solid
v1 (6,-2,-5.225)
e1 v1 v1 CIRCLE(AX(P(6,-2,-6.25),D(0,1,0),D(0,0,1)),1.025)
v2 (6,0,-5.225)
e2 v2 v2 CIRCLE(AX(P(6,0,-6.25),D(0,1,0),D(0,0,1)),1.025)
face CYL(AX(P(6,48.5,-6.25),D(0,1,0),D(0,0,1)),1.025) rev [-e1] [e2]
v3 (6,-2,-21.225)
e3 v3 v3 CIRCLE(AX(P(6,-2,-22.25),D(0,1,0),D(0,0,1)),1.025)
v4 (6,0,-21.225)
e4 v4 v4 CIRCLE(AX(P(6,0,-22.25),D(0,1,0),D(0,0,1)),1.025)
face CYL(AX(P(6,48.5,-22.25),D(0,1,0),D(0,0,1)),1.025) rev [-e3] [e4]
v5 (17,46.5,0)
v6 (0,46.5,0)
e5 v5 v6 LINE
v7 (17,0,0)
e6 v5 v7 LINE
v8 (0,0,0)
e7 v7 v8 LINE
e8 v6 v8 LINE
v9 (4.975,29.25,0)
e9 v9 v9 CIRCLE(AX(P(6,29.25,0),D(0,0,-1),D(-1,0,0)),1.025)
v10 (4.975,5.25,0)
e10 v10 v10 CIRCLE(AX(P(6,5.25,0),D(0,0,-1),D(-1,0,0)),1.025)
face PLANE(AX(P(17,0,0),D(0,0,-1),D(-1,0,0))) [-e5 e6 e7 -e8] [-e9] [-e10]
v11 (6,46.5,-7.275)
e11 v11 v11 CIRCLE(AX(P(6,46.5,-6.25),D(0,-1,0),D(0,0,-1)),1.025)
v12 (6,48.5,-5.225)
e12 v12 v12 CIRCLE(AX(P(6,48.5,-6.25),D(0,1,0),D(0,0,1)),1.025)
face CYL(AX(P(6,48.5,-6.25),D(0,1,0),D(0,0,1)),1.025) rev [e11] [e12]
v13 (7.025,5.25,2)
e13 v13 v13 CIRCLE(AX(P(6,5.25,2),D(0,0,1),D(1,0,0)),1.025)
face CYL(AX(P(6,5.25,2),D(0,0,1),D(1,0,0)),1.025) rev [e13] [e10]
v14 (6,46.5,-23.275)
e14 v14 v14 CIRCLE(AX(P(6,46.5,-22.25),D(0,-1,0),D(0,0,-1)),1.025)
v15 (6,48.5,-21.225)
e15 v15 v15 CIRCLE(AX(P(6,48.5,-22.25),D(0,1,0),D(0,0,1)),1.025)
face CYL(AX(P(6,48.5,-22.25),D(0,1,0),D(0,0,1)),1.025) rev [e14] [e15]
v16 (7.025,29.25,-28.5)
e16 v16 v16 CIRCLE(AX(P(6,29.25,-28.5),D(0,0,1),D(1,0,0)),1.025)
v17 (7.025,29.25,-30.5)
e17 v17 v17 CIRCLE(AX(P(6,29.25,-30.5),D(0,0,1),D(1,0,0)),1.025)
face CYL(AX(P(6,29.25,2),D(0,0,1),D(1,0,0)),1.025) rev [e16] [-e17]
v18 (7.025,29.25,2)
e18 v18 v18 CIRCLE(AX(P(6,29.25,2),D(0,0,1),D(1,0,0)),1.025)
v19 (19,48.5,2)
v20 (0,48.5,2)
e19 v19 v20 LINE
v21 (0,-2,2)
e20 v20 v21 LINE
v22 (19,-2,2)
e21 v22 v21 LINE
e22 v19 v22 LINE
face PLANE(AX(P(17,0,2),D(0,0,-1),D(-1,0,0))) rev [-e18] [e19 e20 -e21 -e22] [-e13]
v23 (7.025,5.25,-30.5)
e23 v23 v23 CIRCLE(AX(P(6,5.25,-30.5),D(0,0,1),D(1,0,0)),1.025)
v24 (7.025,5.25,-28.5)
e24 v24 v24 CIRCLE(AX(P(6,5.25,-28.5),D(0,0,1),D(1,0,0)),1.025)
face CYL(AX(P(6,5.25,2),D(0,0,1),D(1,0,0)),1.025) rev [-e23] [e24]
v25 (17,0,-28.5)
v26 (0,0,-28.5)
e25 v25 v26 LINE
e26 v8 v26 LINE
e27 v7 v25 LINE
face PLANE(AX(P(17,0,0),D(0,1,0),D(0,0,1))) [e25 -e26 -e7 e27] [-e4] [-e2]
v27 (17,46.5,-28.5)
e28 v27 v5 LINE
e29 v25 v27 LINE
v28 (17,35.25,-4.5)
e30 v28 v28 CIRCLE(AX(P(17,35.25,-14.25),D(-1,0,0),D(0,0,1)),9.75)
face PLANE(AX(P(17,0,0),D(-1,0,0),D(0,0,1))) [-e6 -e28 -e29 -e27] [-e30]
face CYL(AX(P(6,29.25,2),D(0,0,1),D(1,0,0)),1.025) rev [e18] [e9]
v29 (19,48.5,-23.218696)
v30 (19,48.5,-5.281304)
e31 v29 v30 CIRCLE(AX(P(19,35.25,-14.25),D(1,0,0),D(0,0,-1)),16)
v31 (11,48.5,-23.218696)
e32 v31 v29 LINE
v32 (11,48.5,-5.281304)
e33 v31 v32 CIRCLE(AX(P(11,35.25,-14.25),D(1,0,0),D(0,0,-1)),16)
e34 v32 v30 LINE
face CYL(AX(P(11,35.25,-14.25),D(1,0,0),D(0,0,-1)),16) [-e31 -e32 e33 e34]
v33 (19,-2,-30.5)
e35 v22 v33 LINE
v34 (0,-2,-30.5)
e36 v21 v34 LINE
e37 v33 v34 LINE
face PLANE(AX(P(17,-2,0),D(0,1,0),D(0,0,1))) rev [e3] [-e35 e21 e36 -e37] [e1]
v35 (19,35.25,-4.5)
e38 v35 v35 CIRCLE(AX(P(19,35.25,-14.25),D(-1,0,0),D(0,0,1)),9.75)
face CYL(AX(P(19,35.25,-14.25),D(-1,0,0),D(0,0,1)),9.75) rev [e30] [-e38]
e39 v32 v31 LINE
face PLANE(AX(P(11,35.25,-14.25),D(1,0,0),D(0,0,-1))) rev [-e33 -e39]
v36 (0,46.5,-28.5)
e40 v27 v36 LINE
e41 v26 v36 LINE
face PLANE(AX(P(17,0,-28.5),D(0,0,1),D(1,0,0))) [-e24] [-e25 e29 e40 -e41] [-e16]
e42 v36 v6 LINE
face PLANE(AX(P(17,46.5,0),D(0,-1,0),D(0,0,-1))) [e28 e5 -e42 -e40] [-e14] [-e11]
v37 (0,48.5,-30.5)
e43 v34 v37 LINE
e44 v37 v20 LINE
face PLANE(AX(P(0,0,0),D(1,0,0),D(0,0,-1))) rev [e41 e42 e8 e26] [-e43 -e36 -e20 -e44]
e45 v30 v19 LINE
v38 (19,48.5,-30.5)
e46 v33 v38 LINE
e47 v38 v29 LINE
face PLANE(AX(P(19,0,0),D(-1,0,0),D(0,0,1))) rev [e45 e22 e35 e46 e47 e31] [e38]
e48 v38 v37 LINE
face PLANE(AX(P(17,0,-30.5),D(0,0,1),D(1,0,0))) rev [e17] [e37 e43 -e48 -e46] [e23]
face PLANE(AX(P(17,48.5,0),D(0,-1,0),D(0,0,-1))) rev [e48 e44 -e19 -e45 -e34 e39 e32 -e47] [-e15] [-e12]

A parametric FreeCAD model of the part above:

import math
import FreeCAD as App
import Part
import Sketcher
from FreeCAD import Vector
Q = App.Units.Quantity


def add_polygon(sketch, points):
    """Adds a closed chain of lines whose ends are joined by coincident constraints."""
    first, n = sketch.GeometryCount, len(points)
    for a, b in zip(points, points[1:] + points[:1]):
        sketch.addGeometry(Part.LineSegment(App.Vector(*a, 0), App.Vector(*b, 0)), False)
    for i in range(n):
        sketch.addConstraint(Sketcher.Constraint("Coincident", first + i, 2, first + (i + 1) % n, 1))

doc = App.newDocument("Part")
body = doc.addObject("PartDesign::Body", "Body")

# Sketch on YZ plane
sketch1 = doc.addObject("Sketcher::SketchObject", "Sketch")
body.addObject(sketch1)
sketch1.AttachmentSupport = (doc.YZ_Plane, [""])
sketch1.MapMode = "FlatFace"
add_polygon(sketch1, [(48, 2), (-2, 2), (-2, -30), (48, -30)])  # lines 0-3
add_polygon(sketch1, [(0, -28), (0, 0), (46, 0), (46, -28)])  # lines 4-7
sketch1.addConstraint([
    Sketcher.Constraint("Horizontal", 0),
    Sketcher.Constraint("Vertical", 1),
    Sketcher.Constraint("Horizontal", 2),
    Sketcher.Constraint("Vertical", 3),
    Sketcher.Constraint("Vertical", 4),
    Sketcher.Constraint("Horizontal", 5),
    Sketcher.Constraint("Vertical", 6),
    Sketcher.Constraint("Horizontal", 7),
    Sketcher.Constraint("Coincident", 4, 2, -1, 1),
    Sketcher.Constraint("DistanceX", 0, 2, 0, 1, Q("50.5 mm")),
    Sketcher.Constraint("DistanceX", 5, 1, 5, 2, Q("46.5 mm")),
    Sketcher.Constraint("DistanceY", 1, 2, 1, 1, Q("32.5 mm")),
    Sketcher.Constraint("DistanceY", 4, 1, 4, 2, Q("28.5 mm")),
    Sketcher.Constraint("DistanceX", 0, 2, -1, 1, Q("2 mm")),
    Sketcher.Constraint("DistanceY", -1, 1, 0, 2, Q("2 mm")),
])
pad1 = doc.addObject("PartDesign::Pad", "Pad")
body.addObject(pad1)
pad1.Profile = sketch1
pad1.Length = 17

# Sketch on XY plane
sketch2 = doc.addObject("Sketcher::SketchObject", "Sketch001")
body.addObject(sketch2)
sketch2.AttachmentSupport = (doc.XY_Plane, [""])
sketch2.MapMode = "FlatFace"
sketch2.AttachmentOffset = App.Placement(Vector(0, 0, 2), App.Rotation())
sketch2.addGeometry([
    Part.Circle(Vector(6, 29.2, 0), Vector(0, 0, 1), 1),
    Part.Circle(Vector(6, 5.2, 0), Vector(0, 0, 1), 1),
], False)
sketch2.addConstraint([
    Sketcher.Constraint("Equal", 0, 1),
    Sketcher.Constraint("Vertical", 0, 3, 1, 3),
    Sketcher.Constraint("Diameter", 0, Q("2.05 mm")),
    Sketcher.Constraint("DistanceX", -1, 1, 0, 3, Q("6 mm")),
    Sketcher.Constraint("DistanceY", 1, 3, 0, 3, Q("24 mm")),
    Sketcher.Constraint("DistanceY", -1, 1, 0, 3, Q("29.25 mm")),
])
doc.recompute()
hole = doc.addObject("PartDesign::Hole", "Hole")
body.addObject(hole)
hole.Profile = sketch2
hole.ThreadType = "None"
hole.Diameter = 2.05
hole.DepthType = "ThroughAll"

# Sketch on XZ plane
sketch3 = doc.addObject("Sketcher::SketchObject", "Sketch002")
body.addObject(sketch3)
sketch3.AttachmentSupport = (doc.XZ_Plane, [""])
sketch3.MapMode = "FlatFace"
sketch3.AttachmentOffset = App.Placement(Vector(0, 0, -48.5), App.Rotation())
sketch3.addGeometry([
    Part.Circle(Vector(6, -6.2, 0), Vector(0, 0, 1), 1),
    Part.Circle(Vector(6, -22.2, 0), Vector(0, 0, 1), 1),
], False)
sketch3.addConstraint([
    Sketcher.Constraint("Equal", 0, 1),
    Sketcher.Constraint("Vertical", 0, 3, 1, 3),
    Sketcher.Constraint("Diameter", 0, Q("2.05 mm")),
    Sketcher.Constraint("DistanceX", -1, 1, 0, 3, Q("6 mm")),
    Sketcher.Constraint("DistanceY", 1, 3, 0, 3, Q("16 mm")),
    Sketcher.Constraint("DistanceY", 0, 3, -1, 1, Q("6.25 mm")),
])
doc.recompute()
hole2 = doc.addObject("PartDesign::Hole", "Hole001")
body.addObject(hole2)
hole2.Profile = sketch3
hole2.ThreadType = "None"
hole2.Diameter = 2.05
hole2.DepthType = "ThroughAll"
hole2.Reversed = True

# Sketch on YZ plane
sketch4 = doc.addObject("Sketcher::SketchObject", "Sketch003")
body.addObject(sketch4)
sketch4.AttachmentSupport = (doc.YZ_Plane, [""])
sketch4.MapMode = "FlatFace"
sketch4.AttachmentOffset = App.Placement(Vector(0, 0, 17), App.Rotation())
add_polygon(sketch4, [(48, 2), (-2, 2), (-2, -30), (48, -30)])  # lines 0-3
sketch4.addConstraint([
    Sketcher.Constraint("Horizontal", 0),
    Sketcher.Constraint("Vertical", 1),
    Sketcher.Constraint("Horizontal", 2),
    Sketcher.Constraint("Vertical", 3),
    Sketcher.Constraint("DistanceX", 0, 2, 0, 1, Q("50.5 mm")),
    Sketcher.Constraint("DistanceY", 1, 2, 1, 1, Q("32.5 mm")),
    Sketcher.Constraint("DistanceX", 0, 2, -1, 1, Q("2 mm")),
    Sketcher.Constraint("DistanceY", -1, 1, 0, 2, Q("2 mm")),
])
pad2 = doc.addObject("PartDesign::Pad", "Pad001")
body.addObject(pad2)
pad2.Profile = sketch4
pad2.Length = 2

# Sketch on YZ plane
sketch5 = doc.addObject("Sketcher::SketchObject", "Sketch004")
body.addObject(sketch5)
sketch5.AttachmentSupport = (doc.YZ_Plane, [""])
sketch5.MapMode = "FlatFace"
sketch5.AttachmentOffset = App.Placement(Vector(0, 0, 17), App.Rotation())
sketch5.addGeometry(Part.Circle(Vector(35, -14, 0), Vector(0, 0, 1), 10), False)
sketch5.addConstraint([
    Sketcher.Constraint("Diameter", 0, Q("19.5 mm")),
    Sketcher.Constraint("DistanceX", -1, 1, 0, 3, Q("35.25 mm")),
    Sketcher.Constraint("DistanceY", 0, 3, -1, 1, Q("14.25 mm")),
])
pocket1 = doc.addObject("PartDesign::Pocket", "Pocket")
body.addObject(pocket1)
pocket1.Profile = sketch5
pocket1.Length = 2
pocket1.Reversed = True

# Sketch on YZ plane
sketch6 = doc.addObject("Sketcher::SketchObject", "Sketch005")
body.addObject(sketch6)
sketch6.AttachmentSupport = (doc.YZ_Plane, [""])
sketch6.MapMode = "FlatFace"
sketch6.AttachmentOffset = App.Placement(Vector(0, 0, 19), App.Rotation())
sketch6.addGeometry([
    Part.LineSegment(Vector(48, -5, 0), Vector(48, -23, 0)),
    Part.ArcOfCircle(Part.Circle(Vector(35, -14, 0), Vector(0, 0, 1), 16), math.radians(-34), math.radians(34)),
], False)
sketch6.addConstraint([
    Sketcher.Constraint("Coincident", 0, 1, 1, 2),
    Sketcher.Constraint("Coincident", 1, 1, 0, 2),
    Sketcher.Constraint("Vertical", 0),
    Sketcher.Constraint("Radius", 1, Q("16 mm")),
    Sketcher.Constraint("DistanceX", -1, 1, 0, 1, Q("48.5 mm")),
    Sketcher.Constraint("DistanceX", -1, 1, 1, 3, Q("35.25 mm")),
    Sketcher.Constraint("DistanceY", 1, 3, -1, 1, Q("14.25 mm")),
])
pad3 = doc.addObject("PartDesign::Pad", "Pad002")
body.addObject(pad3)
pad3.Profile = sketch6
pad3.Length = 8
pad3.Reversed = True

doc.recompute()
